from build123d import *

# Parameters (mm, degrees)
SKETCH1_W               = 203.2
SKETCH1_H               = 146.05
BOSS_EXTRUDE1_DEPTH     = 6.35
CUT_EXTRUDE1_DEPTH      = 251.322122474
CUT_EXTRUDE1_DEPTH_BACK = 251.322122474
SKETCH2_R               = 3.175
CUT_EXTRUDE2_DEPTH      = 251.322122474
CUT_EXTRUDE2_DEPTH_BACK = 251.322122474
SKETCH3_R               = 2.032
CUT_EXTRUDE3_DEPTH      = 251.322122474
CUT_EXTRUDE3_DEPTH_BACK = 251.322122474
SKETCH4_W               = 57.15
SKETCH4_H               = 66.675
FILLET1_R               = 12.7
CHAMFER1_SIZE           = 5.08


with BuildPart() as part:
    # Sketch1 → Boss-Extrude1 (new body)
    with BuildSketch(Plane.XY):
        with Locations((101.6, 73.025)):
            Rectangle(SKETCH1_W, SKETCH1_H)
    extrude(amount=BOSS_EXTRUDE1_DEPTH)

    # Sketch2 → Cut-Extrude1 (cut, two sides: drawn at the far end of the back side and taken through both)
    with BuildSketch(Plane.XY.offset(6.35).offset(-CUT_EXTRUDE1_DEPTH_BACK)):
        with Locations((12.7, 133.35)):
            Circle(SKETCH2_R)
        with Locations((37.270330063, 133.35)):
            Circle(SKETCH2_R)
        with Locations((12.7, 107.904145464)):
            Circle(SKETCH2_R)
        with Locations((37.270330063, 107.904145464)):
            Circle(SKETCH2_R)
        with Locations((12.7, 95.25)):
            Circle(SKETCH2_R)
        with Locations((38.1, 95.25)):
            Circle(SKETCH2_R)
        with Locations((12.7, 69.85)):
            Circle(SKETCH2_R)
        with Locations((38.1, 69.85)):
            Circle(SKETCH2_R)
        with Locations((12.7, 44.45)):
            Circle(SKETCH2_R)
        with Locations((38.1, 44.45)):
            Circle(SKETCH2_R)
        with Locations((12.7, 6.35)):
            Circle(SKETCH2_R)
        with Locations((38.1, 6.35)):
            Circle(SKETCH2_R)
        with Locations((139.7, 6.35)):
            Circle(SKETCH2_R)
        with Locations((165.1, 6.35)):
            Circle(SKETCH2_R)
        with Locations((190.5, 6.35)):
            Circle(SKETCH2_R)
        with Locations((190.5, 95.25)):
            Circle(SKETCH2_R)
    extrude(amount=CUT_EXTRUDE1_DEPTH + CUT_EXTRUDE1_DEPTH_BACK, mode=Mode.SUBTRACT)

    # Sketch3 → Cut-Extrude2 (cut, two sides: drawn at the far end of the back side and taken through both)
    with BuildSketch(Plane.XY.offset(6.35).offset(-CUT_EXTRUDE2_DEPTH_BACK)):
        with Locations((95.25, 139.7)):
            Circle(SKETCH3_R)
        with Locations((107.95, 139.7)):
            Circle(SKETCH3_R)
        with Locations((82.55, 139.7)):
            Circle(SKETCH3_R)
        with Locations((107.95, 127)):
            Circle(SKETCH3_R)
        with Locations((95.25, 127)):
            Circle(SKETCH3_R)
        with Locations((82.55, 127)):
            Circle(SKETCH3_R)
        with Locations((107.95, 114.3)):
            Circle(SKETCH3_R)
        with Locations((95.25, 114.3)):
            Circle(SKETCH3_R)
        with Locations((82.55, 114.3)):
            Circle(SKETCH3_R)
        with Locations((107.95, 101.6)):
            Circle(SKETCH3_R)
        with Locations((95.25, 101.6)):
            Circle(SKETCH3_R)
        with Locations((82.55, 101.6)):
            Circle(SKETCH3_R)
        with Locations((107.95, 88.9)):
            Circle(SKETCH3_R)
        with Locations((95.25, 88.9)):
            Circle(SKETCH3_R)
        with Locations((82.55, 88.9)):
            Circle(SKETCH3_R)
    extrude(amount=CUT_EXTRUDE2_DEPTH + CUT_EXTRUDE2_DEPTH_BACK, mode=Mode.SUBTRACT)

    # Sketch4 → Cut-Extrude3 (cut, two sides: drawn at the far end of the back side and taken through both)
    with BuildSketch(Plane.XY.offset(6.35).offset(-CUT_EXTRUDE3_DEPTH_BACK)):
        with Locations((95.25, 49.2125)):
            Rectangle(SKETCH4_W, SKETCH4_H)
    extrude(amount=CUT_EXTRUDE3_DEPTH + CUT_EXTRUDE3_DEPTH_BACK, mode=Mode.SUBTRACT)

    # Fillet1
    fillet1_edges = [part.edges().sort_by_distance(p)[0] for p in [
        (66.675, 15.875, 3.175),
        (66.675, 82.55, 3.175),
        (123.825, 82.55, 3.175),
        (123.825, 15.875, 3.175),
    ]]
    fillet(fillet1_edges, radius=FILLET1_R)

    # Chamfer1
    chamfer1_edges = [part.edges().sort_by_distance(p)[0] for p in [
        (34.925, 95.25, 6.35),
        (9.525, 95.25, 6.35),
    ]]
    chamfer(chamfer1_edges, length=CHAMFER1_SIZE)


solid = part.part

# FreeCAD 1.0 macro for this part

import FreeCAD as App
import Part
import Sketcher

V = App.Vector
Q = App.Units.Quantity


def edges_at(feature, points):
    """Names of the edges that pass closest to the given points."""
    edges = feature.Shape.Edges
    near = lambda p: min(range(len(edges)), key=lambda i: edges[i].distToShape(Part.Vertex(*p))[0])
    return sorted({f"Edge{near(p) + 1}" for p in points})

doc = App.newDocument("Part")
body = doc.addObject("PartDesign::Body", "Body")

# Sketch on XY plane
sketch1 = doc.addObject("Sketcher::SketchObject", "Sketch")
body.addObject(sketch1)
sketch1.AttachmentSupport = (doc.XY_Plane, [""])
sketch1.MapMode = "FlatFace"
sketch1.addGeometry(Part.LineSegment(V(0, 146, 0), V(0, 0, 0)), False)
sketch1.addGeometry(Part.LineSegment(V(0, 0, 0), V(203, 0, 0)), False)
sketch1.addGeometry(Part.LineSegment(V(203, 0, 0), V(203, 146, 0)), False)
sketch1.addGeometry(Part.LineSegment(V(203, 146, 0), V(0, 146, 0)), False)
sketch1.addConstraint(Sketcher.Constraint("Coincident", 0, 2, 1, 1))
sketch1.addConstraint(Sketcher.Constraint("Coincident", 1, 2, 2, 1))
sketch1.addConstraint(Sketcher.Constraint("Coincident", 2, 2, 3, 1))
sketch1.addConstraint(Sketcher.Constraint("Coincident", 3, 2, 0, 1))
sketch1.addConstraint(Sketcher.Constraint("Vertical", 0))
sketch1.addConstraint(Sketcher.Constraint("Horizontal", 1))
sketch1.addConstraint(Sketcher.Constraint("Vertical", 2))
sketch1.addConstraint(Sketcher.Constraint("Horizontal", 3))
sketch1.addConstraint(Sketcher.Constraint("Coincident", 0, 2, -1, 1))
sketch1.addConstraint(Sketcher.Constraint("DistanceX", 1, 1, 1, 2, Q("8 in")))
sketch1.addConstraint(Sketcher.Constraint("DistanceY", 0, 2, 0, 1, Q("5.75 in")))
pad1 = doc.addObject("PartDesign::Pad", "Pad")
body.addObject(pad1)
pad1.Profile = sketch1
pad1.Length = Q("0.25 in")

# Sketch on XY plane
sketch2 = doc.addObject("Sketcher::SketchObject", "Sketch001")
body.addObject(sketch2)
sketch2.AttachmentSupport = (doc.XY_Plane, [""])
sketch2.MapMode = "FlatFace"
sketch2.AttachmentOffset = App.Placement(V(0, 0, 0.25 * 25.4), App.Rotation())
sketch2.addGeometry(Part.Circle(V(12.7, 133.3, 0), V(0, 0, 1), 3.2), False)
sketch2.addGeometry(Part.Circle(V(37.3, 133.3, 0), V(0, 0, 1), 3.2), False)
sketch2.addGeometry(Part.Circle(V(12.7, 107.9, 0), V(0, 0, 1), 3.2), False)
sketch2.addGeometry(Part.Circle(V(37.3, 107.9, 0), V(0, 0, 1), 3.2), False)
sketch2.addGeometry(Part.Circle(V(12.7, 95.2, 0), V(0, 0, 1), 3.2), False)
sketch2.addGeometry(Part.Circle(V(38.1, 95.2, 0), V(0, 0, 1), 3.2), False)
sketch2.addGeometry(Part.Circle(V(12.7, 69.8, 0), V(0, 0, 1), 3.2), False)
sketch2.addGeometry(Part.Circle(V(38.1, 69.8, 0), V(0, 0, 1), 3.2), False)
sketch2.addGeometry(Part.Circle(V(12.7, 44.5, 0), V(0, 0, 1), 3.2), False)
sketch2.addGeometry(Part.Circle(V(38.1, 44.5, 0), V(0, 0, 1), 3.2), False)
sketch2.addGeometry(Part.Circle(V(12.7, 6.3, 0), V(0, 0, 1), 3.2), False)
sketch2.addGeometry(Part.Circle(V(38.1, 6.3, 0), V(0, 0, 1), 3.2), False)
sketch2.addGeometry(Part.Circle(V(139.7, 6.3, 0), V(0, 0, 1), 3.2), False)
sketch2.addGeometry(Part.Circle(V(165.1, 6.3, 0), V(0, 0, 1), 3.2), False)
sketch2.addGeometry(Part.Circle(V(190.5, 6.3, 0), V(0, 0, 1), 3.2), False)
sketch2.addGeometry(Part.Circle(V(190.5, 95.2, 0), V(0, 0, 1), 3.2), False)
sketch2.addConstraint(Sketcher.Constraint("Equal", 0, 1))
sketch2.addConstraint(Sketcher.Constraint("Equal", 1, 2))
sketch2.addConstraint(Sketcher.Constraint("Equal", 2, 3))
sketch2.addConstraint(Sketcher.Constraint("Equal", 3, 4))
sketch2.addConstraint(Sketcher.Constraint("Equal", 4, 5))
sketch2.addConstraint(Sketcher.Constraint("Equal", 5, 6))
sketch2.addConstraint(Sketcher.Constraint("Equal", 6, 7))
sketch2.addConstraint(Sketcher.Constraint("Equal", 7, 8))
sketch2.addConstraint(Sketcher.Constraint("Equal", 8, 9))
sketch2.addConstraint(Sketcher.Constraint("Equal", 9, 10))
sketch2.addConstraint(Sketcher.Constraint("Equal", 10, 11))
sketch2.addConstraint(Sketcher.Constraint("Equal", 11, 12))
sketch2.addConstraint(Sketcher.Constraint("Equal", 12, 13))
sketch2.addConstraint(Sketcher.Constraint("Equal", 13, 14))
sketch2.addConstraint(Sketcher.Constraint("Equal", 14, 15))
sketch2.addConstraint(Sketcher.Constraint("Horizontal", 0, 3, 1, 3))
sketch2.addConstraint(Sketcher.Constraint("Horizontal", 2, 3, 3, 3))
sketch2.addConstraint(Sketcher.Constraint("Horizontal", 4, 3, 5, 3))
sketch2.addConstraint(Sketcher.Constraint("Horizontal", 6, 3, 7, 3))
sketch2.addConstraint(Sketcher.Constraint("Horizontal", 8, 3, 9, 3))
sketch2.addConstraint(Sketcher.Constraint("Horizontal", 10, 3, 11, 3))
sketch2.addConstraint(Sketcher.Constraint("Horizontal", 11, 3, 12, 3))
sketch2.addConstraint(Sketcher.Constraint("Horizontal", 12, 3, 13, 3))
sketch2.addConstraint(Sketcher.Constraint("Horizontal", 13, 3, 14, 3))
sketch2.addConstraint(Sketcher.Constraint("Horizontal", 5, 3, 15, 3))
sketch2.addConstraint(Sketcher.Constraint("Vertical", 0, 3, 2, 3))
sketch2.addConstraint(Sketcher.Constraint("Vertical", 1, 3, 3, 3))
sketch2.addConstraint(Sketcher.Constraint("Vertical", 2, 3, 4, 3))
sketch2.addConstraint(Sketcher.Constraint("Vertical", 4, 3, 6, 3))
sketch2.addConstraint(Sketcher.Constraint("Vertical", 5, 3, 7, 3))
sketch2.addConstraint(Sketcher.Constraint("Vertical", 6, 3, 8, 3))
sketch2.addConstraint(Sketcher.Constraint("Vertical", 7, 3, 9, 3))
sketch2.addConstraint(Sketcher.Constraint("Vertical", 8, 3, 10, 3))
sketch2.addConstraint(Sketcher.Constraint("Vertical", 9, 3, 11, 3))
sketch2.addConstraint(Sketcher.Constraint("Vertical", 14, 3, 15, 3))
sketch2.addConstraint(Sketcher.Constraint("Diameter", 0, Q("0.25 in")))
sketch2.addConstraint(Sketcher.Constraint("DistanceX", 4, 3, 5, 3, Q("1 in")))
sketch2.addConstraint(Sketcher.Constraint("DistanceY", 6, 3, 4, 3, Q("1 in")))
sketch2.addConstraint(Sketcher.Constraint("DistanceY", 8, 3, 6, 3, Q("1 in")))
sketch2.addConstraint(Sketcher.Constraint("DistanceX", 11, 3, 12, 3, Q("4 in")))
sketch2.addConstraint(Sketcher.Constraint("DistanceX", 12, 3, 13, 3, Q("1 in")))
sketch2.addConstraint(Sketcher.Constraint("DistanceX", 13, 3, 14, 3, Q("1 in")))
sketch2.addConstraint(Sketcher.Constraint("DistanceX", -1, 1, 0, 3, Q("0.5 in")))
sketch2.addConstraint(Sketcher.Constraint("DistanceY", 4, 3, 0, 3, Q("1.5 in")))
sketch2.addConstraint(Sketcher.Constraint("DistanceY", 10, 3, 8, 3, Q("1.5 in")))
sketch2.addConstraint(Sketcher.Constraint("DistanceY", -1, 1, 0, 3, Q("5.25 in")))
sketch2.addConstraint(Sketcher.Constraint("DistanceX", -1, 1, 1, 3, Q("37.27033 mm")))
sketch2.addConstraint(Sketcher.Constraint("DistanceY", -1, 1, 2, 3, Q("107.904145 mm")))
pocket1 = doc.addObject("PartDesign::Pocket", "Pocket")
body.addObject(pocket1)
pocket1.Profile = sketch2
pocket1.Type = "ThroughAll"
pocket1.Midplane = True

# Sketch on XY plane
sketch3 = doc.addObject("Sketcher::SketchObject", "Sketch002")
body.addObject(sketch3)
sketch3.AttachmentSupport = (doc.XY_Plane, [""])
sketch3.MapMode = "FlatFace"
sketch3.AttachmentOffset = App.Placement(V(0, 0, 0.25 * 25.4), App.Rotation())
sketch3.addGeometry(Part.Circle(V(95.2, 139.7, 0), V(0, 0, 1), 2), False)
sketch3.addGeometry(Part.Circle(V(108, 139.7, 0), V(0, 0, 1), 2), False)
sketch3.addGeometry(Part.Circle(V(82.5, 139.7, 0), V(0, 0, 1), 2), False)
sketch3.addGeometry(Part.Circle(V(108, 127, 0), V(0, 0, 1), 2), False)
sketch3.addGeometry(Part.Circle(V(95.2, 127, 0), V(0, 0, 1), 2), False)
sketch3.addGeometry(Part.Circle(V(82.5, 127, 0), V(0, 0, 1), 2), False)
sketch3.addGeometry(Part.Circle(V(108, 114.3, 0), V(0, 0, 1), 2), False)
sketch3.addGeometry(Part.Circle(V(95.2, 114.3, 0), V(0, 0, 1), 2), False)
sketch3.addGeometry(Part.Circle(V(82.5, 114.3, 0), V(0, 0, 1), 2), False)
sketch3.addGeometry(Part.Circle(V(108, 101.6, 0), V(0, 0, 1), 2), False)
sketch3.addGeometry(Part.Circle(V(95.2, 101.6, 0), V(0, 0, 1), 2), False)
sketch3.addGeometry(Part.Circle(V(82.5, 101.6, 0), V(0, 0, 1), 2), False)
sketch3.addGeometry(Part.Circle(V(108, 88.9, 0), V(0, 0, 1), 2), False)
sketch3.addGeometry(Part.Circle(V(95.2, 88.9, 0), V(0, 0, 1), 2), False)
sketch3.addGeometry(Part.Circle(V(82.5, 88.9, 0), V(0, 0, 1), 2), False)
sketch3.addConstraint(Sketcher.Constraint("Equal", 0, 1))
sketch3.addConstraint(Sketcher.Constraint("Equal", 1, 2))
sketch3.addConstraint(Sketcher.Constraint("Equal", 2, 3))
sketch3.addConstraint(Sketcher.Constraint("Equal", 3, 4))
sketch3.addConstraint(Sketcher.Constraint("Equal", 4, 5))
sketch3.addConstraint(Sketcher.Constraint("Equal", 5, 6))
sketch3.addConstraint(Sketcher.Constraint("Equal", 6, 7))
sketch3.addConstraint(Sketcher.Constraint("Equal", 7, 8))
sketch3.addConstraint(Sketcher.Constraint("Equal", 8, 9))
sketch3.addConstraint(Sketcher.Constraint("Equal", 9, 10))
sketch3.addConstraint(Sketcher.Constraint("Equal", 10, 11))
sketch3.addConstraint(Sketcher.Constraint("Equal", 11, 12))
sketch3.addConstraint(Sketcher.Constraint("Equal", 12, 13))
sketch3.addConstraint(Sketcher.Constraint("Equal", 13, 14))
sketch3.addConstraint(Sketcher.Constraint("Horizontal", 0, 3, 1, 3))
sketch3.addConstraint(Sketcher.Constraint("Horizontal", 1, 3, 2, 3))
sketch3.addConstraint(Sketcher.Constraint("Horizontal", 3, 3, 4, 3))
sketch3.addConstraint(Sketcher.Constraint("Horizontal", 4, 3, 5, 3))
sketch3.addConstraint(Sketcher.Constraint("Horizontal", 6, 3, 7, 3))
sketch3.addConstraint(Sketcher.Constraint("Horizontal", 7, 3, 8, 3))
sketch3.addConstraint(Sketcher.Constraint("Horizontal", 9, 3, 10, 3))
sketch3.addConstraint(Sketcher.Constraint("Horizontal", 10, 3, 11, 3))
sketch3.addConstraint(Sketcher.Constraint("Horizontal", 12, 3, 13, 3))
sketch3.addConstraint(Sketcher.Constraint("Horizontal", 13, 3, 14, 3))
sketch3.addConstraint(Sketcher.Constraint("Vertical", 1, 3, 3, 3))
sketch3.addConstraint(Sketcher.Constraint("Vertical", 0, 3, 4, 3))
sketch3.addConstraint(Sketcher.Constraint("Vertical", 2, 3, 5, 3))
sketch3.addConstraint(Sketcher.Constraint("Vertical", 3, 3, 6, 3))
sketch3.addConstraint(Sketcher.Constraint("Vertical", 4, 3, 7, 3))
sketch3.addConstraint(Sketcher.Constraint("Vertical", 5, 3, 8, 3))
sketch3.addConstraint(Sketcher.Constraint("Vertical", 6, 3, 9, 3))
sketch3.addConstraint(Sketcher.Constraint("Vertical", 7, 3, 10, 3))
sketch3.addConstraint(Sketcher.Constraint("Vertical", 8, 3, 11, 3))
sketch3.addConstraint(Sketcher.Constraint("Vertical", 9, 3, 12, 3))
sketch3.addConstraint(Sketcher.Constraint("Vertical", 10, 3, 13, 3))
sketch3.addConstraint(Sketcher.Constraint("Vertical", 11, 3, 14, 3))
sketch3.addConstraint(Sketcher.Constraint("Diameter", 0, Q("0.16 in")))
sketch3.addConstraint(Sketcher.Constraint("DistanceY", -1, 1, 3, 3, Q("5 in")))
sketch3.addConstraint(Sketcher.Constraint("DistanceY", -1, 1, 9, 3, Q("4 in")))
sketch3.addConstraint(Sketcher.Constraint("DistanceX", 2, 3, 1, 3, Q("1 in")))
sketch3.addConstraint(Sketcher.Constraint("DistanceY", 6, 3, 1, 3, Q("1 in")))
sketch3.addConstraint(Sketcher.Constraint("DistanceY", 12, 3, 6, 3, Q("1 in")))
sketch3.addConstraint(Sketcher.Constraint("DistanceY", -1, 1, 0, 3, Q("5.5 in")))
sketch3.addConstraint(Sketcher.Constraint("DistanceX", 0, 3, 1, 3, Q("0.5 in")))
sketch3.addConstraint(Sketcher.Constraint("DistanceX", -1, 1, 0, 3, Q("3.75 in")))
pocket2 = doc.addObject("PartDesign::Pocket", "Pocket001")
body.addObject(pocket2)
pocket2.Profile = sketch3
pocket2.Type = "ThroughAll"
pocket2.Midplane = True

# Sketch on XY plane
sketch4 = doc.addObject("Sketcher::SketchObject", "Sketch003")
body.addObject(sketch4)
sketch4.AttachmentSupport = (doc.XY_Plane, [""])
sketch4.MapMode = "FlatFace"
sketch4.AttachmentOffset = App.Placement(V(0, 0, 0.25 * 25.4), App.Rotation())
sketch4.addGeometry(Part.LineSegment(V(67, 83, 0), V(67, 16, 0)), False)
sketch4.addGeometry(Part.LineSegment(V(67, 16, 0), V(124, 16, 0)), False)
sketch4.addGeometry(Part.LineSegment(V(124, 16, 0), V(124, 83, 0)), False)
sketch4.addGeometry(Part.LineSegment(V(124, 83, 0), V(67, 83, 0)), False)
sketch4.addConstraint(Sketcher.Constraint("Coincident", 0, 2, 1, 1))
sketch4.addConstraint(Sketcher.Constraint("Coincident", 1, 2, 2, 1))
sketch4.addConstraint(Sketcher.Constraint("Coincident", 2, 2, 3, 1))
sketch4.addConstraint(Sketcher.Constraint("Coincident", 3, 2, 0, 1))
sketch4.addConstraint(Sketcher.Constraint("Vertical", 0))
sketch4.addConstraint(Sketcher.Constraint("Horizontal", 1))
sketch4.addConstraint(Sketcher.Constraint("Vertical", 2))
sketch4.addConstraint(Sketcher.Constraint("Horizontal", 3))
sketch4.addConstraint(Sketcher.Constraint("DistanceX", 1, 1, 1, 2, Q("2.25 in")))
sketch4.addConstraint(Sketcher.Constraint("DistanceY", 0, 2, 0, 1, Q("2.625 in")))
sketch4.addConstraint(Sketcher.Constraint("DistanceY", -1, 1, 2, 2, Q("3.25 in")))
sketch4.addConstraint(Sketcher.Constraint("DistanceX", -1, 1, 0, 2, Q("2.625 in")))
pocket3 = doc.addObject("PartDesign::Pocket", "Pocket002")
body.addObject(pocket3)
pocket3.Profile = sketch4
pocket3.Type = "ThroughAll"
pocket3.Midplane = True
doc.recompute()

fillet = doc.addObject("PartDesign::Fillet", "Fillet")
body.addObject(fillet)
fillet.Base = (pocket3, edges_at(pocket3, [
    (66.675, 15.875, 3.175),
    (66.675, 82.55, 3.175),
    (123.825, 82.55, 3.175),
    (123.825, 15.875, 3.175),
]))
fillet.Radius = Q("0.5 in")
doc.recompute()

chamfer = doc.addObject("PartDesign::Chamfer", "Chamfer")
body.addObject(chamfer)
chamfer.Base = (fillet, edges_at(fillet, [(34.925, 95.25, 6.35), (9.525, 95.25, 6.35)]))
chamfer.Size = Q("0.2 in")

doc.recompute()
